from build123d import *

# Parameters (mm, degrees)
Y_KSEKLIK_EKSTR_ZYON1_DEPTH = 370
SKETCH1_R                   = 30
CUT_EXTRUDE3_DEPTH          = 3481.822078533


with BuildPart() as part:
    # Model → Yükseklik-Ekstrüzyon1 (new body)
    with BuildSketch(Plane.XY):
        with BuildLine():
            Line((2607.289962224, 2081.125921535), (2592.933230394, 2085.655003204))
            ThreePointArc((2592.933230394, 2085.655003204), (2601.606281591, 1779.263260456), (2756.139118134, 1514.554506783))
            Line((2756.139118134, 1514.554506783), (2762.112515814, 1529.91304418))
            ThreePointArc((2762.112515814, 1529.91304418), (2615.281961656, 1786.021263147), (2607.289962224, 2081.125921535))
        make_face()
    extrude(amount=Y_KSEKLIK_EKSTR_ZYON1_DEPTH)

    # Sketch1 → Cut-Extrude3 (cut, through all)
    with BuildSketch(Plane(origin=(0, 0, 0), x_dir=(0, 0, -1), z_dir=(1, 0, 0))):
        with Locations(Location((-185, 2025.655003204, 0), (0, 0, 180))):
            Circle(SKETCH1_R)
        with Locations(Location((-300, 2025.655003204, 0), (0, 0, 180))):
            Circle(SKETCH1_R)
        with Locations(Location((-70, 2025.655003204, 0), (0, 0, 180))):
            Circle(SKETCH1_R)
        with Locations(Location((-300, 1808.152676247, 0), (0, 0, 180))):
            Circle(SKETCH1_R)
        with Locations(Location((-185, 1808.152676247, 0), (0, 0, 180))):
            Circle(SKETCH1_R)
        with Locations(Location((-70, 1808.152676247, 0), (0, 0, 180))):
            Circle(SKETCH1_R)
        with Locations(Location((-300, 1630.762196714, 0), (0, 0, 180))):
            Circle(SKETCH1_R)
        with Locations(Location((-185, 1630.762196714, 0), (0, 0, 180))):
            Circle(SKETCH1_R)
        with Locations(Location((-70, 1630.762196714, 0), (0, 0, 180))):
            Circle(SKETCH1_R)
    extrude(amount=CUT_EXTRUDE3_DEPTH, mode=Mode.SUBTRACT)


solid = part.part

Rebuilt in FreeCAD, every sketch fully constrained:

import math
import FreeCAD as App
import Part
import Sketcher
from FreeCAD import Vector
Q = App.Units.Quantity

doc = App.newDocument("Part")
params = doc.addObject("Spreadsheet::Sheet", "Params")
for row, (alias, value) in enumerate([
    ("pad1_length", "370 mm"),
    ("sketch2_diameter", "60 mm"),
], start=1):
    params.set(f"A{row}", alias)
    params.set(f"B{row}", "=" + value)
    params.setAlias(f"B{row}", alias)

body = doc.addObject("PartDesign::Body", "Body")

# Sketch on XY plane
sketch1 = body.newObject("Sketcher::SketchObject", "Sketch")
sketch1.AttachmentSupport = (doc.getObject("XY_Plane"), [""])
sketch1.MapMode = "FlatFace"
sketch1.addGeometry(Part.LineSegment(Vector(2607.289962, 2081.125922, 0), Vector(2592.93323, 2085.655003, 0)), False)
sketch1.addGeometry(Part.ArcOfCircle(Part.Circle(Vector(3197.094019, 1949.438397, 0), Vector(0, 0, 1), 619.326426), math.radians(167.294306), math.radians(224.602852)), False)
sketch1.addGeometry(Part.LineSegment(Vector(2756.139118, 1514.554507, 0), Vector(2762.112516, 1529.913044, 0)), False)
sketch1.addGeometry(Part.ArcOfCircle(Part.Circle(Vector(3197.094019, 1949.438397, 0), Vector(0, 0, 1), 604.326426), math.radians(167.413814), math.radians(223.963758)), False)
sketch1.addConstraint(Sketcher.Constraint("Coincident", 0, 2, 1, 1))
sketch1.addConstraint(Sketcher.Constraint("Coincident", 1, 2, 2, 1))
sketch1.addConstraint(Sketcher.Constraint("Coincident", 2, 2, 3, 2))
sketch1.addConstraint(Sketcher.Constraint("Coincident", 3, 1, 0, 1))
sketch1.addConstraint(Sketcher.Constraint("Coincident", 3, 3, 1, 3))
sketch1.addConstraint(Sketcher.Constraint("Radius", 1, Q("619.326426 mm")))
sketch1.addConstraint(Sketcher.Constraint("Radius", 3, Q("604.326426 mm")))
sketch1.addConstraint(Sketcher.Constraint("Distance", 0, Q("15.05418 mm")))
sketch1.addConstraint(Sketcher.Constraint("DistanceX", -1, 1, 1, 3, Q("3197.094019 mm")))
sketch1.addConstraint(Sketcher.Constraint("DistanceX", -1, 1, 0, 2, Q("2592.93323 mm")))
sketch1.addConstraint(Sketcher.Constraint("DistanceY", 2, 2, 0, 2, Q("555.741959 mm")))
sketch1.addConstraint(Sketcher.Constraint("Distance", 2, Q("16.479264 mm")))
sketch1.addConstraint(Sketcher.Constraint("DistanceY", -1, 1, 1, 3, Q("1949.438397 mm")))
pad1 = body.newObject("PartDesign::Pad", "Pad")
pad1.Profile = sketch1
pad1.setExpression("Length", "Params.pad1_length")

# Sketch on YZ plane
sketch2 = body.newObject("Sketcher::SketchObject", "Sketch001")
sketch2.AttachmentSupport = (doc.getObject("YZ_Plane"), [""])
sketch2.MapMode = "FlatFace"
sketch2.addGeometry(Part.Circle(Vector(2026, 185, 0), Vector(0, 0, 1), 30), False)
sketch2.addGeometry(Part.Circle(Vector(2026, 300, 0), Vector(0, 0, 1), 30), False)
sketch2.addGeometry(Part.Circle(Vector(2026, 70, 0), Vector(0, 0, 1), 30), False)
sketch2.addGeometry(Part.Circle(Vector(1808, 300, 0), Vector(0, 0, 1), 30), False)
sketch2.addGeometry(Part.Circle(Vector(1808, 185, 0), Vector(0, 0, 1), 30), False)
sketch2.addGeometry(Part.Circle(Vector(1808, 70, 0), Vector(0, 0, 1), 30), False)
sketch2.addGeometry(Part.Circle(Vector(1631, 300, 0), Vector(0, 0, 1), 30), False)
sketch2.addGeometry(Part.Circle(Vector(1631, 185, 0), Vector(0, 0, 1), 30), False)
sketch2.addGeometry(Part.Circle(Vector(1631, 70, 0), Vector(0, 0, 1), 30), False)
sketch2.addConstraint(Sketcher.Constraint("Equal", 0, 1))
sketch2.addConstraint(Sketcher.Constraint("Equal", 1, 2))
sketch2.addConstraint(Sketcher.Constraint("Equal", 2, 3))
sketch2.addConstraint(Sketcher.Constraint("Equal", 3, 4))
sketch2.addConstraint(Sketcher.Constraint("Equal", 4, 5))
sketch2.addConstraint(Sketcher.Constraint("Equal", 5, 6))
sketch2.addConstraint(Sketcher.Constraint("Equal", 6, 7))
sketch2.addConstraint(Sketcher.Constraint("Equal", 7, 8))
sketch2.addConstraint(Sketcher.Constraint("Horizontal", 1, 3, 3, 3))
sketch2.addConstraint(Sketcher.Constraint("Horizontal", 0, 3, 4, 3))
sketch2.addConstraint(Sketcher.Constraint("Horizontal", 2, 3, 5, 3))
sketch2.addConstraint(Sketcher.Constraint("Horizontal", 3, 3, 6, 3))
sketch2.addConstraint(Sketcher.Constraint("Horizontal", 4, 3, 7, 3))
sketch2.addConstraint(Sketcher.Constraint("Horizontal", 5, 3, 8, 3))
sketch2.addConstraint(Sketcher.Constraint("Vertical", 0, 3, 1, 3))
sketch2.addConstraint(Sketcher.Constraint("Vertical", 1, 3, 2, 3))
sketch2.addConstraint(Sketcher.Constraint("Vertical", 3, 3, 4, 3))
sketch2.addConstraint(Sketcher.Constraint("Vertical", 4, 3, 5, 3))
sketch2.addConstraint(Sketcher.Constraint("Vertical", 6, 3, 7, 3))
sketch2.addConstraint(Sketcher.Constraint("Vertical", 7, 3, 8, 3))
sketch2.addConstraint(Sketcher.Constraint("Diameter", 0, Q("60 mm")))
sketch2.addConstraint(Sketcher.Constraint("DistanceY", -1, 1, 0, 3, Q("185 mm")))
sketch2.addConstraint(Sketcher.Constraint("DistanceY", -1, 1, 1, 3, Q("300 mm")))
sketch2.addConstraint(Sketcher.Constraint("DistanceY", -1, 1, 2, 3, Q("70 mm")))
sketch2.addConstraint(Sketcher.Constraint("DistanceX", 6, 3, 3, 3, Q("177.39048 mm")))
sketch2.addConstraint(Sketcher.Constraint("DistanceX", -1, 1, 0, 3, Q("2025.655003 mm")))
sketch2.addConstraint(Sketcher.Constraint("DistanceX", -1, 1, 3, 3, Q("1808.152676 mm")))
sketch2.setExpression("Constraints[20]", "Params.sketch2_diameter")
pocket1 = body.newObject("PartDesign::Pocket", "Pocket")
pocket1.Profile = sketch2
pocket1.Type = "ThroughAll"
pocket1.Reversed = True

doc.recompute()
